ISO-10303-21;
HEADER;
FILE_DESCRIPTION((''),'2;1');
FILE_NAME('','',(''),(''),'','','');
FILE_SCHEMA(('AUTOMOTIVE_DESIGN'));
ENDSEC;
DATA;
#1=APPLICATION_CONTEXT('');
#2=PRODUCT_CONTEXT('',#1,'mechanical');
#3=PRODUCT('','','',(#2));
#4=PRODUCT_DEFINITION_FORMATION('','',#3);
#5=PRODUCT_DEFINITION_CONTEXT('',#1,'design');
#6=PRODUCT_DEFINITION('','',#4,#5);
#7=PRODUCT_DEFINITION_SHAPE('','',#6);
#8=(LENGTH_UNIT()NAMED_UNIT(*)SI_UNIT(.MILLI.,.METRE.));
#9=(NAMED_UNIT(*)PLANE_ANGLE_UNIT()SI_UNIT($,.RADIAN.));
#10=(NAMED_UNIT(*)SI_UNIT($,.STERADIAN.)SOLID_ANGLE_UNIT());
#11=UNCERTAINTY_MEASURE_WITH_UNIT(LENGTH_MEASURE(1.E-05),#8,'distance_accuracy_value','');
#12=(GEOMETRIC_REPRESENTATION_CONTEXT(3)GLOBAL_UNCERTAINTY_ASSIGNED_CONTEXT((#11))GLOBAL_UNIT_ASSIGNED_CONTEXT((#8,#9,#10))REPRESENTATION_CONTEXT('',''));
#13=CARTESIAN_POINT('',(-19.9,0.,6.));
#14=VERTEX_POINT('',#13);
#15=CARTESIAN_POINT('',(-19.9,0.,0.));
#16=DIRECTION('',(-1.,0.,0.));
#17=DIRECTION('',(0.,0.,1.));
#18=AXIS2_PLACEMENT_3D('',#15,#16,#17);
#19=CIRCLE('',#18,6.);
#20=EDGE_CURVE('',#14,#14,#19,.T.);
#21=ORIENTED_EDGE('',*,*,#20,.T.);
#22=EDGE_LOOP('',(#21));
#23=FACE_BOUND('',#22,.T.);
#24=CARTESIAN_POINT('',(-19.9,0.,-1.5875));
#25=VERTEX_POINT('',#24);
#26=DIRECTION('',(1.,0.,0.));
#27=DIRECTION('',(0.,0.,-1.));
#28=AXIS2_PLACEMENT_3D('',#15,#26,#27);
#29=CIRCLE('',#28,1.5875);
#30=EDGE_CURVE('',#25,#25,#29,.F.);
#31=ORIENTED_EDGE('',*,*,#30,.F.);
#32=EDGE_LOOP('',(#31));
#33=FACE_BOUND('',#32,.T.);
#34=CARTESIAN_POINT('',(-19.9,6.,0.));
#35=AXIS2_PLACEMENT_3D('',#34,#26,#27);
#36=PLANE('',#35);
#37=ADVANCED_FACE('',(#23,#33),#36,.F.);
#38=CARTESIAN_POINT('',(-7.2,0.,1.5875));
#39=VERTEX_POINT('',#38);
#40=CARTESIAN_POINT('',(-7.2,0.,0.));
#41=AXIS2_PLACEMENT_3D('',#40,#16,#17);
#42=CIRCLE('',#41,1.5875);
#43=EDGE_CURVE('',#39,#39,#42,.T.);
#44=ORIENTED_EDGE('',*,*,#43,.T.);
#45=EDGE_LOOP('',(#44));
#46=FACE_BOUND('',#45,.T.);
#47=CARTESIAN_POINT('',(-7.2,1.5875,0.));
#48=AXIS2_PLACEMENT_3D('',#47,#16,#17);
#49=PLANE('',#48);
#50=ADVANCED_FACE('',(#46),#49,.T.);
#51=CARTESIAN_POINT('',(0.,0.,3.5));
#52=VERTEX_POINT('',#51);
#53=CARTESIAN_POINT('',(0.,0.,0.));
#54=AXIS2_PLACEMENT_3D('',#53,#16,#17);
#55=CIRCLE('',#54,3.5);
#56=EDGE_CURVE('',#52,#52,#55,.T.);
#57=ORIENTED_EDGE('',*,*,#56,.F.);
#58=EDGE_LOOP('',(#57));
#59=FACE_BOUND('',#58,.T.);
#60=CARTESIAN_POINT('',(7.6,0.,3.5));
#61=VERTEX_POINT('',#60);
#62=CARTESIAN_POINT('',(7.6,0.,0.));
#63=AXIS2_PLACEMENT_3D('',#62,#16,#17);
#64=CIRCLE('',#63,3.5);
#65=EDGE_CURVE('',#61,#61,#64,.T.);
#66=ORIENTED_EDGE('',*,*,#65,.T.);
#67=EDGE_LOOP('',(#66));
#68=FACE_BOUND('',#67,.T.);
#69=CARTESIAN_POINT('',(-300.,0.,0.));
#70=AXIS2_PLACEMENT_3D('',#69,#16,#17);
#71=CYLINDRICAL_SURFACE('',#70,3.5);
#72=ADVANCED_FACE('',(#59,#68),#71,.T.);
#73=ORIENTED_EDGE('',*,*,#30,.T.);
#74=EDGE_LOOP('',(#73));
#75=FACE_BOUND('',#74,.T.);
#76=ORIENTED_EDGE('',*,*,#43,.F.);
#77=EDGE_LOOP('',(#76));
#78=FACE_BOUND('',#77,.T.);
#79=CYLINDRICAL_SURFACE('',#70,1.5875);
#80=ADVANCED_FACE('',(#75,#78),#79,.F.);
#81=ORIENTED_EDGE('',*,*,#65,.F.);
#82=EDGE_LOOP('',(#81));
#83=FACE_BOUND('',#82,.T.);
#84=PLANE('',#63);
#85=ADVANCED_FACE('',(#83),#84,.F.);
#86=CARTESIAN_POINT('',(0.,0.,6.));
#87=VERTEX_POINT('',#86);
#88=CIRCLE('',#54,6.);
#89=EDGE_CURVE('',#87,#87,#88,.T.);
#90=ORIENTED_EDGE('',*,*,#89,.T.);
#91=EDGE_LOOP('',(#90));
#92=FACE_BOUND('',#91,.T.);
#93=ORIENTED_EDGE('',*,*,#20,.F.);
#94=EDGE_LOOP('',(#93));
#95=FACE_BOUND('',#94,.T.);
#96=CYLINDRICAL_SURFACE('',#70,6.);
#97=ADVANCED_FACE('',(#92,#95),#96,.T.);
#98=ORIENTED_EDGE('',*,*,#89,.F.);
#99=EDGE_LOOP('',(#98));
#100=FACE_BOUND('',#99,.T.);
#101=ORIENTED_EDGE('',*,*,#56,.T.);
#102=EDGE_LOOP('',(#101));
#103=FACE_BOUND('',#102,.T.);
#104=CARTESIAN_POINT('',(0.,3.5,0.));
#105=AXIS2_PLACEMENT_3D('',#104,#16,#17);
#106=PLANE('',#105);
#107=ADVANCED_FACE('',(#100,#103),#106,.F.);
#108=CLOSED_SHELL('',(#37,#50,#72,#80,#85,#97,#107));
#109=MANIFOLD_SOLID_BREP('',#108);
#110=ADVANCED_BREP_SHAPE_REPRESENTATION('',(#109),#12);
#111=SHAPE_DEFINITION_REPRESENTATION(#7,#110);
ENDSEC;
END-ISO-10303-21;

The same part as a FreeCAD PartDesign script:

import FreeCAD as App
import Part
import Sketcher
Q = App.Units.Quantity


def add_polygon(sketch, points):
    """Adds a closed chain of lines whose ends are joined by coincident constraints."""
    first, n = sketch.GeometryCount, len(points)
    for a, b in zip(points, points[1:] + points[:1]):
        sketch.addGeometry(Part.LineSegment(App.Vector(*a, 0), App.Vector(*b, 0)), False)
    for i in range(n):
        sketch.addConstraint(Sketcher.Constraint("Coincident", first + i, 2, first + (i + 1) % n, 1))

doc = App.newDocument("Part")
body = doc.addObject("PartDesign::Body", "Body")

# Sketch on XY plane
sketch1 = body.newObject("Sketcher::SketchObject", "Sketch")
sketch1.AttachmentSupport = (doc.getObject("XY_Plane"), [""])
sketch1.MapMode = "FlatFace"
add_polygon(sketch1, [(7.6, 0), (7.6, 3.5), (0, 3.5), (0, 6), (-19.9, 6), (-19.9, 0)])  # lines 0-5
sketch1.addConstraint([
    Sketcher.Constraint("Vertical", 0),
    Sketcher.Constraint("Horizontal", 1),
    Sketcher.Constraint("Vertical", 2),
    Sketcher.Constraint("Horizontal", 3),
    Sketcher.Constraint("Vertical", 4),
    Sketcher.Constraint("Horizontal", 5),
    Sketcher.Constraint("PointOnObject", 1, 2, -2),
    Sketcher.Constraint("PointOnObject", 4, 2, -1),
    Sketcher.Constraint("DistanceY", 4, 2, 4, 1, Q("6 mm")),
    Sketcher.Constraint("DistanceX", 1, 2, 1, 1, Q("7.6 mm")),
    Sketcher.Constraint("DistanceX", 3, 2, 3, 1, Q("19.9 mm")),
    Sketcher.Constraint("DistanceY", 0, 1, 0, 2, Q("3.5 mm")),
])
revolution = body.newObject("PartDesign::Revolution", "Revolution")
revolution.Profile = sketch1
revolution.ReferenceAxis = (sketch1, ["H_Axis"])
revolution.Angle = 360

# Sketch on XY plane
sketch2 = body.newObject("Sketcher::SketchObject", "Sketch001")
sketch2.AttachmentSupport = (doc.getObject("XY_Plane"), [""])
sketch2.MapMode = "FlatFace"
add_polygon(sketch2, [(-20.9, 1.6), (-20.9, 0), (-7.2, 0), (-7.2, 1.6)])  # lines 0-3
sketch2.addConstraint([
    Sketcher.Constraint("Vertical", 0),
    Sketcher.Constraint("Horizontal", 1),
    Sketcher.Constraint("Vertical", 2),
    Sketcher.Constraint("Horizontal", 3),
    Sketcher.Constraint("PointOnObject", 0, 2, -1),
    Sketcher.Constraint("DistanceX", 1, 1, 1, 2, Q("13.7 mm")),
    Sketcher.Constraint("DistanceX", 0, 2, -1, 1, Q("20.9 mm")),
    Sketcher.Constraint("DistanceY", 0, 2, 0, 1, Q("1.5875 mm")),
])
groove = body.newObject("PartDesign::Groove", "Groove")
groove.Profile = sketch2
groove.ReferenceAxis = (sketch2, ["H_Axis"])
groove.Angle = 360

doc.recompute()
